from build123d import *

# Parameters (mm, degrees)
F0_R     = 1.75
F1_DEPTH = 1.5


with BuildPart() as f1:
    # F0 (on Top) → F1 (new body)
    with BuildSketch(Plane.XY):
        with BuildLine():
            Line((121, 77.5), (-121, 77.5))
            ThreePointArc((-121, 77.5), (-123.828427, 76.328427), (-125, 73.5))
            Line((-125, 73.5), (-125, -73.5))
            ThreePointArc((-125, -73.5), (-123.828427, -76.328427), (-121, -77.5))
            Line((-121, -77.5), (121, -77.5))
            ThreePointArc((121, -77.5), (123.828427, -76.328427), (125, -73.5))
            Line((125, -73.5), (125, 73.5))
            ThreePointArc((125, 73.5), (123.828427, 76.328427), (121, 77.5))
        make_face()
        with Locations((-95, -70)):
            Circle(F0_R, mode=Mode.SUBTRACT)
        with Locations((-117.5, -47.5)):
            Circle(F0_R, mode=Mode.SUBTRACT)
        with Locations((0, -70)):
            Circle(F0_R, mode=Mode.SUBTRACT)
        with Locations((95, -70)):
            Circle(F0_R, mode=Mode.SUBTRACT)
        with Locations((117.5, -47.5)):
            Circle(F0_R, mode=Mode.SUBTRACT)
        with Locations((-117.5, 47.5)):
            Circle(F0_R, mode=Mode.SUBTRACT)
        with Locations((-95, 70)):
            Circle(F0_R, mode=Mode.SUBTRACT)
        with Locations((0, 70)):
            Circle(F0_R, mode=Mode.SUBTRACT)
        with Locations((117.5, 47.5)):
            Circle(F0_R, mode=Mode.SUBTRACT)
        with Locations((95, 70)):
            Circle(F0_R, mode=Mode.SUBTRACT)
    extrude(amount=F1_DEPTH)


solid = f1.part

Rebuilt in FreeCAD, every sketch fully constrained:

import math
import FreeCAD as App
import Part
import Sketcher

V = App.Vector
Q = App.Units.Quantity

doc = App.newDocument("Part")
body = doc.addObject("PartDesign::Body", "Body")

sketch1 = body.newObject("Sketcher::SketchObject", "Sketch")
sketch1.AttachmentSupport = (doc.getObject("XY_Plane"), [""])
sketch1.MapMode = "FlatFace"
sketch1.addGeometry([
    Part.LineSegment(V(121, 77.5, 0), V(-121, 77.5, 0)),
    Part.ArcOfCircle(Part.Circle(V(-121, 73.5, 0), V(0, 0, 1), 4), math.radians(90), math.radians(180)),
    Part.LineSegment(V(-125, 73.5, 0), V(-125, -73.5, 0)),
    Part.ArcOfCircle(Part.Circle(V(-121, -73.5, 0), V(0, 0, 1), 4), math.radians(-180), math.radians(-90)),
    Part.LineSegment(V(-121, -77.5, 0), V(121, -77.5, 0)),
    Part.ArcOfCircle(Part.Circle(V(121, -73.5, 0), V(0, 0, 1), 4), math.radians(-90), math.radians(0)),
    Part.LineSegment(V(125, -73.5, 0), V(125, 73.5, 0)),
    Part.ArcOfCircle(Part.Circle(V(121, 73.5, 0), V(0, 0, 1), 4), math.radians(0), math.radians(90)),
    Part.Circle(V(-95, -70, 0), V(0, 0, 1), 1.8),
    Part.Circle(V(-117.5, -47.5, 0), V(0, 0, 1), 1.8),
    Part.Circle(V(0, -70, 0), V(0, 0, 1), 1.8),
    Part.Circle(V(95, -70, 0), V(0, 0, 1), 1.8),
    Part.Circle(V(117.5, -47.5, 0), V(0, 0, 1), 1.8),
    Part.Circle(V(-117.5, 47.5, 0), V(0, 0, 1), 1.8),
    Part.Circle(V(-95, 70, 0), V(0, 0, 1), 1.8),
    Part.Circle(V(0, 70, 0), V(0, 0, 1), 1.8),
    Part.Circle(V(117.5, 47.5, 0), V(0, 0, 1), 1.8),
    Part.Circle(V(95, 70, 0), V(0, 0, 1), 1.8),
], False)
sketch1.addConstraint([
    Sketcher.Constraint("Tangent", 0, 2, 1, 1),
    Sketcher.Constraint("Tangent", 1, 2, 2, 1),
    Sketcher.Constraint("Tangent", 2, 2, 3, 1),
    Sketcher.Constraint("Tangent", 3, 2, 4, 1),
    Sketcher.Constraint("Tangent", 4, 2, 5, 1),
    Sketcher.Constraint("Tangent", 5, 2, 6, 1),
    Sketcher.Constraint("Tangent", 6, 2, 7, 1),
    Sketcher.Constraint("Tangent", 7, 2, 0, 1),
    Sketcher.Constraint("Horizontal", 0),
    Sketcher.Constraint("Vertical", 2),
    Sketcher.Constraint("Horizontal", 4),
    Sketcher.Constraint("Vertical", 6),
    Sketcher.Constraint("Equal", 1, 3),
    Sketcher.Constraint("Equal", 3, 5),
    Sketcher.Constraint("Equal", 5, 7),
    Sketcher.Constraint("Equal", 8, 9),
    Sketcher.Constraint("Equal", 9, 10),
    Sketcher.Constraint("Equal", 10, 11),
    Sketcher.Constraint("Equal", 11, 12),
    Sketcher.Constraint("Equal", 12, 13),
    Sketcher.Constraint("Equal", 13, 14),
    Sketcher.Constraint("Equal", 14, 15),
    Sketcher.Constraint("Equal", 15, 16),
    Sketcher.Constraint("Equal", 16, 17),
    Sketcher.Constraint("Symmetric", 1, 3, 5, 3, -1, 1),
    Sketcher.Constraint("Symmetric", 12, 3, 13, 3, -1, 1),
    Sketcher.Constraint("Symmetric", 11, 3, 14, 3, -1, 1),
    Sketcher.Constraint("Symmetric", 10, 3, 15, 3, -1, 1),
    Sketcher.Constraint("Symmetric", 9, 3, 16, 3, -1, 1),
    Sketcher.Constraint("Symmetric", 8, 3, 17, 3, -1, 1),
    Sketcher.Constraint("Symmetric", 8, 3, 11, 3, -2),
    Sketcher.Constraint("Symmetric", 9, 3, 12, 3, -2),
    Sketcher.Constraint("PointOnObject", 10, 3, -2),
    Sketcher.Constraint("Horizontal", 8, 3, 10, 3),
    Sketcher.Constraint("Radius", 1, Q("4 mm")),
    Sketcher.Constraint("Diameter", 8, Q("3.5 mm")),
    Sketcher.Constraint("DistanceX", 0, 2, 0, 1, Q("242 mm")),
    Sketcher.Constraint("DistanceY", 2, 2, 2, 1, Q("147 mm")),
    Sketcher.Constraint("DistanceX", 8, 3, -1, 1, Q("95 mm")),
    Sketcher.Constraint("DistanceY", 8, 3, -1, 1, Q("70 mm")),
    Sketcher.Constraint("DistanceY", 3, 3, 9, 3, Q("26 mm")),
    Sketcher.Constraint("DistanceX", 9, 3, -1, 1, Q("117.5 mm")),
])
pad1 = body.newObject("PartDesign::Pad", "Pad")
pad1.Profile = sketch1
pad1.Length = 1.5

doc.recompute()
